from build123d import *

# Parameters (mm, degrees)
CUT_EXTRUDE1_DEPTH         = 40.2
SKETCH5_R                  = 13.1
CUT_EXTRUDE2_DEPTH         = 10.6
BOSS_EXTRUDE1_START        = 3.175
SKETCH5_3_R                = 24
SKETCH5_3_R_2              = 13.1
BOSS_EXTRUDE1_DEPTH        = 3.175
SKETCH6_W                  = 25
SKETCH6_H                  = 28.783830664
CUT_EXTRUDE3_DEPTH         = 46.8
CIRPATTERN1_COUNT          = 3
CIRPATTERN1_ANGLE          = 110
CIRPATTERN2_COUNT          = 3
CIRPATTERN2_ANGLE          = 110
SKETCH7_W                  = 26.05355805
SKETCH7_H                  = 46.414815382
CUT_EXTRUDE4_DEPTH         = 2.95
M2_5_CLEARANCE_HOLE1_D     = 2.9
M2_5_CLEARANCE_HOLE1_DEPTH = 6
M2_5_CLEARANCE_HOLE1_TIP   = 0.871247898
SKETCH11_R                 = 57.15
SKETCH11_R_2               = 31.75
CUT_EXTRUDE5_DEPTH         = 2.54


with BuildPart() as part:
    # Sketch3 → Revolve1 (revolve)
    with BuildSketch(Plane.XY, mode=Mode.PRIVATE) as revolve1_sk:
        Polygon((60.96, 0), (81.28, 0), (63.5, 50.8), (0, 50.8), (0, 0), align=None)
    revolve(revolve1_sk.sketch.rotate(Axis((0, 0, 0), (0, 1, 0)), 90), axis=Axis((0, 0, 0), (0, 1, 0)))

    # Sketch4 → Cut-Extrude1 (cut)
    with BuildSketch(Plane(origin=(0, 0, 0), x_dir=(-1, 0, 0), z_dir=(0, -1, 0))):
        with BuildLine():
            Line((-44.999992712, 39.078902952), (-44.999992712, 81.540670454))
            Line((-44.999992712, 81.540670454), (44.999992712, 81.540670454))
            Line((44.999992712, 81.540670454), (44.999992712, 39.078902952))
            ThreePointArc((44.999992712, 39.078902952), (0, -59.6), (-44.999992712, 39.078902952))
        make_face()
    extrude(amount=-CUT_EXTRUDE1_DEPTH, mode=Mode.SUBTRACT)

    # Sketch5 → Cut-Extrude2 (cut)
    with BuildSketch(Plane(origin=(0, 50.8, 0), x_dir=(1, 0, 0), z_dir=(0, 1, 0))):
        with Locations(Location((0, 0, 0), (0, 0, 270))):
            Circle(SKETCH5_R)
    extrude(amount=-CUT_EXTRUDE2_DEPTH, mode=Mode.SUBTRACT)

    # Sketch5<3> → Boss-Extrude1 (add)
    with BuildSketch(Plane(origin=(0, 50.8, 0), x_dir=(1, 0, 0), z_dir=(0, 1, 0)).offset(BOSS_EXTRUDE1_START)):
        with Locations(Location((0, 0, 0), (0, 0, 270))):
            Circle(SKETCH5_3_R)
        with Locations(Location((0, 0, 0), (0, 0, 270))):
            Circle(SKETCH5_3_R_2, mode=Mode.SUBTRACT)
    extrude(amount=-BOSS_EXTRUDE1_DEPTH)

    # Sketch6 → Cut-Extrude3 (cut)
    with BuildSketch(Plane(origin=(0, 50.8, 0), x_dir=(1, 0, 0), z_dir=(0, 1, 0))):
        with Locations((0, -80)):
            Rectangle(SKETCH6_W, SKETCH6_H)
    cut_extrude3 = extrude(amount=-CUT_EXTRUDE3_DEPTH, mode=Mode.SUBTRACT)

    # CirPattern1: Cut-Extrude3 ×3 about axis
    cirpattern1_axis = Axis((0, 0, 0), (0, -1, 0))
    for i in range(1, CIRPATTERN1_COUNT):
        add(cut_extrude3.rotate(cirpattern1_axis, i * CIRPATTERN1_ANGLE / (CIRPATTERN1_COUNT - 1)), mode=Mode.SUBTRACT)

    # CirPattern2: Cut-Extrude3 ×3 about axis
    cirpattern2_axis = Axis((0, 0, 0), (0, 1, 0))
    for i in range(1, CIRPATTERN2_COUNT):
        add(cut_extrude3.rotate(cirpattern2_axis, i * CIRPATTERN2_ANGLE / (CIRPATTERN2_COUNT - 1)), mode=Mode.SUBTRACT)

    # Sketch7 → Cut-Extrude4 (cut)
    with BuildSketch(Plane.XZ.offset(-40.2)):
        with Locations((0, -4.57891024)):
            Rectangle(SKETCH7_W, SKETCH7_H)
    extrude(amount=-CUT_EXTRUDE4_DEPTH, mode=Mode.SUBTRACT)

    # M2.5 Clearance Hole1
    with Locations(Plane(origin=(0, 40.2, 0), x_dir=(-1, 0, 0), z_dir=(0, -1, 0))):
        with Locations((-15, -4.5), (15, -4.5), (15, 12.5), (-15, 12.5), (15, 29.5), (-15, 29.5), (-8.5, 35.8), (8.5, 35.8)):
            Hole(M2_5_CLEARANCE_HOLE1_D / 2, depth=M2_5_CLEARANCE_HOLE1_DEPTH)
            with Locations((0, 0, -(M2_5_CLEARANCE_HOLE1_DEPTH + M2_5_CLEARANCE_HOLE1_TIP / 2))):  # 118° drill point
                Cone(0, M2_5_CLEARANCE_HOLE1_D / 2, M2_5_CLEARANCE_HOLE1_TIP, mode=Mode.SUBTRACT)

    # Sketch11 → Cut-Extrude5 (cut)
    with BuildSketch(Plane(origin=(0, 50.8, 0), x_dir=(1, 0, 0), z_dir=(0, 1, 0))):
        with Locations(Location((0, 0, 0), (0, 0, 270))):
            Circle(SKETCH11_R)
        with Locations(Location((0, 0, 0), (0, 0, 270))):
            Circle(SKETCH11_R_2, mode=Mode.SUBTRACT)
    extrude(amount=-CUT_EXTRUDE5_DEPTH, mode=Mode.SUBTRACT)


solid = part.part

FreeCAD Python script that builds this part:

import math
import FreeCAD as App
import Part
import Sketcher
Q = App.Units.Quantity


def add_polygon(sketch, points):
    """Adds a closed chain of lines whose ends are joined by coincident constraints."""
    first, n = sketch.GeometryCount, len(points)
    for a, b in zip(points, points[1:] + points[:1]):
        sketch.addGeometry(Part.LineSegment(App.Vector(*a, 0), App.Vector(*b, 0)), False)
    for i in range(n):
        sketch.addConstraint(Sketcher.Constraint("Coincident", first + i, 2, first + (i + 1) % n, 1))

doc = App.newDocument("Part")
body = doc.addObject("PartDesign::Body", "Body")

# Sketch on XY plane
sketch1 = body.newObject("Sketcher::SketchObject", "Sketch")
sketch1.AttachmentSupport = (doc.getObject("XY_Plane"), [""])
sketch1.MapMode = "FlatFace"
add_polygon(sketch1, [(81, 0), (64, 51), (0, 51), (0, 0)])  # lines 0-3
sketch1.addConstraint([
    Sketcher.Constraint("Horizontal", 1),
    Sketcher.Constraint("Vertical", 2),
    Sketcher.Constraint("Horizontal", 3),
    Sketcher.Constraint("Coincident", 2, 2, -1, 1),
    Sketcher.Constraint("DistanceX", 1, 2, 1, 1, Q("63.5 mm")),
    Sketcher.Constraint("DistanceY", 2, 2, 2, 1, Q("50.8 mm")),
    Sketcher.Constraint("DistanceX", 3, 1, 3, 2, Q("81.28 mm")),
])
revolution = body.newObject("PartDesign::Revolution", "Revolution")
revolution.Profile = sketch1
revolution.ReferenceAxis = (sketch1, ["V_Axis"])
revolution.Angle = 360

# Sketch on XZ plane
sketch2 = body.newObject("Sketcher::SketchObject", "Sketch001")
sketch2.AttachmentSupport = (doc.getObject("XZ_Plane"), [""])
sketch2.MapMode = "FlatFace"
sketch2.addGeometry([
    Part.LineSegment(App.Vector(45, -82, 0), App.Vector(45, -39, 0)),
    Part.ArcOfCircle(Part.Circle(App.Vector(0, 0, 0), App.Vector(0, 0, 1), 60), math.radians(-41), math.radians(221)),
    Part.LineSegment(App.Vector(-45, -39, 0), App.Vector(-45, -82, 0)),
    Part.LineSegment(App.Vector(-45, -82, 0), App.Vector(45, -82, 0)),
], False)
sketch2.addConstraint([
    Sketcher.Constraint("Coincident", 0, 2, 1, 1),
    Sketcher.Constraint("Coincident", 1, 2, 2, 1),
    Sketcher.Constraint("Coincident", 2, 2, 3, 1),
    Sketcher.Constraint("Coincident", 3, 2, 0, 1),
    Sketcher.Constraint("Vertical", 0),
    Sketcher.Constraint("Vertical", 2),
    Sketcher.Constraint("Horizontal", 3),
    Sketcher.Constraint("Coincident", 1, 3, -1, 1),
    Sketcher.Constraint("Horizontal", 0, 2, 1, 2),
    Sketcher.Constraint("Radius", 1, Q("59.6 mm")),
    Sketcher.Constraint("DistanceX", 3, 1, 3, 2, Q("89.999985 mm")),
    Sketcher.Constraint("DistanceY", 0, 1, 0, 2, Q("42.461768 mm")),
])
pocket1 = body.newObject("PartDesign::Pocket", "Pocket")
pocket1.Profile = sketch2
pocket1.Length = 40.2

# Sketch on XZ plane
sketch3 = body.newObject("Sketcher::SketchObject", "Sketch002")
sketch3.AttachmentSupport = (doc.getObject("XZ_Plane"), [""])
sketch3.MapMode = "FlatFace"
sketch3.AttachmentOffset = App.Placement(App.Vector(0, 0, -50.8), App.Rotation())
sketch3.addGeometry(Part.Circle(App.Vector(0, 0, 0), App.Vector(0, 0, 1), 13), False)
sketch3.addConstraint([
    Sketcher.Constraint("Coincident", 0, 3, -1, 1),
    Sketcher.Constraint("Diameter", 0, Q("26.2 mm")),
])
pocket2 = body.newObject("PartDesign::Pocket", "Pocket001")
pocket2.Profile = sketch3
pocket2.Length = 10.6
pocket2.Reversed = True

# Sketch on XZ plane
sketch4 = body.newObject("Sketcher::SketchObject", "Sketch003")
sketch4.AttachmentSupport = (doc.getObject("XZ_Plane"), [""])
sketch4.MapMode = "FlatFace"
sketch4.AttachmentOffset = App.Placement(App.Vector(0, 0, -53.975), App.Rotation())
sketch4.addGeometry([
    Part.Circle(App.Vector(0, 0, 0), App.Vector(0, 0, 1), 24),
    Part.Circle(App.Vector(0, 0, 0), App.Vector(0, 0, 1), 13),
], False)
sketch4.addConstraint([
    Sketcher.Constraint("Coincident", 0, 3, -1, 1),
    Sketcher.Constraint("Coincident", 1, 3, -1, 1),
    Sketcher.Constraint("Diameter", 0, Q("48 mm")),
    Sketcher.Constraint("Diameter", 1, Q("26.2 mm")),
])
pad1 = body.newObject("PartDesign::Pad", "Pad")
pad1.Profile = sketch4
pad1.Length = 3.175

# Sketch on XZ plane
sketch5 = body.newObject("Sketcher::SketchObject", "Sketch004")
sketch5.AttachmentSupport = (doc.getObject("XZ_Plane"), [""])
sketch5.MapMode = "FlatFace"
sketch5.AttachmentOffset = App.Placement(App.Vector(0, 0, -50.8), App.Rotation())
add_polygon(sketch5, [(-12, 66), (-12, 94), (12, 94), (12, 66)])  # lines 0-3
sketch5.addConstraint([
    Sketcher.Constraint("Vertical", 0),
    Sketcher.Constraint("Horizontal", 1),
    Sketcher.Constraint("Vertical", 2),
    Sketcher.Constraint("Horizontal", 3),
    Sketcher.Constraint("DistanceX", 1, 1, 1, 2, Q("25 mm")),
    Sketcher.Constraint("DistanceX", 0, 2, -1, 1, Q("12.5 mm")),
    Sketcher.Constraint("DistanceY", 0, 1, 0, 2, Q("28.783831 mm")),
    Sketcher.Constraint("DistanceY", -1, 1, 0, 2, Q("94.391915 mm")),
])
pocket3 = body.newObject("PartDesign::Pocket", "Pocket002")
pocket3.Profile = sketch5
pocket3.Length = 46.8
pocket3.Reversed = True
doc.recompute()

polarpattern = body.newObject("PartDesign::PolarPattern", "PolarPattern")
polarpattern.Originals = [pocket3]
polarpattern.Axis = (doc.getObject("Y_Axis"), [""])
polarpattern.Angle = 110
polarpattern.Occurrences = 3
polarpattern.Reversed = True
body.Tip = polarpattern
doc.recompute()

polarpattern2 = body.newObject("PartDesign::PolarPattern", "PolarPattern001")
polarpattern2.Originals = [pocket3]
polarpattern2.Axis = (doc.getObject("Y_Axis"), [""])
polarpattern2.Angle = 110
polarpattern2.Occurrences = 3
body.Tip = polarpattern2

# Sketch on XZ plane
sketch6 = body.newObject("Sketcher::SketchObject", "Sketch005")
sketch6.AttachmentSupport = (doc.getObject("XZ_Plane"), [""])
sketch6.MapMode = "FlatFace"
sketch6.AttachmentOffset = App.Placement(App.Vector(0, 0, -40.2), App.Rotation())
add_polygon(sketch6, [(-13, 19), (-13, -28), (13, -28), (13, 19)])  # lines 0-3
sketch6.addConstraint([
    Sketcher.Constraint("Vertical", 0),
    Sketcher.Constraint("Horizontal", 1),
    Sketcher.Constraint("Vertical", 2),
    Sketcher.Constraint("Horizontal", 3),
    Sketcher.Constraint("DistanceX", 1, 1, 1, 2, Q("26.053558 mm")),
    Sketcher.Constraint("DistanceY", 0, 2, 0, 1, Q("46.414815 mm")),
    Sketcher.Constraint("DistanceX", 0, 2, -1, 1, Q("13.026779 mm")),
    Sketcher.Constraint("DistanceY", 0, 2, -1, 1, Q("27.786318 mm")),
])
pocket4 = body.newObject("PartDesign::Pocket", "Pocket003")
pocket4.Profile = sketch6
pocket4.Length = 2.95

# Sketch on XZ plane
sketch7 = body.newObject("Sketcher::SketchObject", "Sketch006")
sketch7.AttachmentSupport = (doc.getObject("XZ_Plane"), [""])
sketch7.MapMode = "FlatFace"
sketch7.AttachmentOffset = App.Placement(App.Vector(0, 0, -40.2), App.Rotation())
sketch7.addGeometry([
    Part.Circle(App.Vector(15, 4.5, 0), App.Vector(0, 0, 1), 1.4),  # 0
    Part.Circle(App.Vector(-15, 4.5, 0), App.Vector(0, 0, 1), 1.4),  # 1
    Part.Circle(App.Vector(-15, -12.5, 0), App.Vector(0, 0, 1), 1.4),  # 2
    Part.Circle(App.Vector(15, -12.5, 0), App.Vector(0, 0, 1), 1.4),  # 3
    Part.Circle(App.Vector(-15, -29.5, 0), App.Vector(0, 0, 1), 1.4),  # 4
    Part.Circle(App.Vector(15, -29.5, 0), App.Vector(0, 0, 1), 1.4),  # 5
    Part.Circle(App.Vector(8.5, -35.8, 0), App.Vector(0, 0, 1), 1.4),  # 6
    Part.Circle(App.Vector(-8.5, -35.8, 0), App.Vector(0, 0, 1), 1.4),  # 7
], False)
sketch7.addConstraint([
    Sketcher.Constraint("Equal", 0, 1),
    Sketcher.Constraint("Equal", 1, 2),
    Sketcher.Constraint("Equal", 2, 3),
    Sketcher.Constraint("Equal", 3, 4),
    Sketcher.Constraint("Equal", 4, 5),
    Sketcher.Constraint("Equal", 5, 6),
    Sketcher.Constraint("Equal", 6, 7),
    Sketcher.Constraint("Symmetric", 0, 3, 1, 3, -2),
    Sketcher.Constraint("Symmetric", 2, 3, 3, 3, -2),
    Sketcher.Constraint("Symmetric", 4, 3, 5, 3, -2),
    Sketcher.Constraint("Symmetric", 6, 3, 7, 3, -2),
    Sketcher.Constraint("Vertical", 1, 3, 2, 3),
    Sketcher.Constraint("Vertical", 2, 3, 4, 3),
    Sketcher.Constraint("Diameter", 0, Q("2.9 mm")),
    Sketcher.Constraint("DistanceX", -1, 1, 0, 3, Q("15 mm")),
    Sketcher.Constraint("DistanceY", 2, 3, 1, 3, Q("17 mm")),
    Sketcher.Constraint("DistanceY", 4, 3, 2, 3, Q("17 mm")),
    Sketcher.Constraint("DistanceX", 7, 3, 6, 3, Q("17 mm")),
    Sketcher.Constraint("DistanceY", -1, 1, 0, 3, Q("4.5 mm")),
    Sketcher.Constraint("DistanceY", 6, 3, -1, 1, Q("35.8 mm")),
])
doc.recompute()
hole = body.newObject("PartDesign::Hole", "Hole")
hole.Profile = sketch7
hole.ThreadType = "None"
hole.Diameter = 2.9
hole.DepthType = "Dimension"
hole.Depth = 6
hole.DrillPoint = "Angled"
hole.DrillPointAngle = 118

# Sketch on XZ plane
sketch8 = body.newObject("Sketcher::SketchObject", "Sketch007")
sketch8.AttachmentSupport = (doc.getObject("XZ_Plane"), [""])
sketch8.MapMode = "FlatFace"
sketch8.AttachmentOffset = App.Placement(App.Vector(0, 0, -50.8), App.Rotation())
sketch8.addGeometry([
    Part.Circle(App.Vector(0, 0, 0), App.Vector(0, 0, 1), 57),
    Part.Circle(App.Vector(0, 0, 0), App.Vector(0, 0, 1), 32),
], False)
sketch8.addConstraint([
    Sketcher.Constraint("Coincident", 0, 3, -1, 1),
    Sketcher.Constraint("Coincident", 1, 3, -1, 1),
    Sketcher.Constraint("Diameter", 0, Q("114.3 mm")),
    Sketcher.Constraint("Diameter", 1, Q("63.5 mm")),
])
pocket5 = body.newObject("PartDesign::Pocket", "Pocket004")
pocket5.Profile = sketch8
pocket5.Length = 2.54
pocket5.Reversed = True

doc.recompute()
